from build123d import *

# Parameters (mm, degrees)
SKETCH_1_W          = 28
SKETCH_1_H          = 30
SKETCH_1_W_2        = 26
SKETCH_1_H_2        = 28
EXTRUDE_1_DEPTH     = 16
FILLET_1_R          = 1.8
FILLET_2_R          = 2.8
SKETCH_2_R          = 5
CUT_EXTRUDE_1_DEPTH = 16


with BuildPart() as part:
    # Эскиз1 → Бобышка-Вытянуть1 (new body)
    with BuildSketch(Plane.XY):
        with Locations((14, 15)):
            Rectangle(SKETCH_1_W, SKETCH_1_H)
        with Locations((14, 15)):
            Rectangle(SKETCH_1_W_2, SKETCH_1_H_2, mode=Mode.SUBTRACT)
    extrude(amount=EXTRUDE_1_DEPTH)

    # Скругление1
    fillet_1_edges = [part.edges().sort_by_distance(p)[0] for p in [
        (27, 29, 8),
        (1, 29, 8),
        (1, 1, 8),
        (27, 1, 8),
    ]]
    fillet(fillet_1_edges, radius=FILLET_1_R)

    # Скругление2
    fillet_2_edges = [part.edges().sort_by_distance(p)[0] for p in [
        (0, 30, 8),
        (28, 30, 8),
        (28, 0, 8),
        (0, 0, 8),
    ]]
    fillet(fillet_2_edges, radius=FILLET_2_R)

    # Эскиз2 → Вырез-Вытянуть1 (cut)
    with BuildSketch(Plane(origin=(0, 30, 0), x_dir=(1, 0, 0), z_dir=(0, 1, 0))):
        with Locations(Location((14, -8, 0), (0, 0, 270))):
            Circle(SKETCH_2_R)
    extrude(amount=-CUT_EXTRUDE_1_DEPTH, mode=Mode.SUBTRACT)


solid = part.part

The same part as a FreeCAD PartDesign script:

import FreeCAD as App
import Part
import Sketcher


def edges_at(feature, points):
    """Names of the edges that pass closest to the given points."""
    edges = feature.Shape.Edges
    near = lambda p: min(range(len(edges)), key=lambda i: edges[i].distToShape(Part.Vertex(*p))[0])
    return sorted({f"Edge{near(p) + 1}" for p in points})


def add_polygon(sketch, points):
    """Adds a closed chain of lines whose ends are joined by coincident constraints."""
    first, n = sketch.GeometryCount, len(points)
    for a, b in zip(points, points[1:] + points[:1]):
        sketch.addGeometry(Part.LineSegment(App.Vector(*a, 0), App.Vector(*b, 0)), False)
    for i in range(n):
        sketch.addConstraint(Sketcher.Constraint("Coincident", first + i, 2, first + (i + 1) % n, 1))

doc = App.newDocument("Part")
params = doc.addObject("Spreadsheet::Sheet", "Params")
for row, (alias, value) in enumerate([
    ("sketch1_width", "28 mm"),
    ("sketch1_width2", "26 mm"),
    ("sketch1_height", "30 mm"),
    ("pad1_length", "16 mm"),
    ("fillet_radius", "1.8 mm"),
    ("fillet2_radius", "2.8 mm"),
    ("sketch2_diameter", "10 mm"),
    ("pocket1_length", "16 mm"),
], start=1):
    params.set(f"A{row}", alias)
    params.set(f"B{row}", "=" + value)
    params.setAlias(f"B{row}", alias)

body = doc.addObject("PartDesign::Body", "Body")

# Sketch on XY plane
sketch1 = body.newObject("Sketcher::SketchObject", "Sketch")
sketch1.AttachmentSupport = (doc.getObject("XY_Plane"), [""])
sketch1.MapMode = "FlatFace"
add_polygon(sketch1, [(0, 30), (0, 0), (28, 0), (28, 30)])  # lines 0-3
add_polygon(sketch1, [(27, 1), (1, 1), (1, 29), (27, 29)])  # lines 4-7
sketch1.addConstraint(Sketcher.Constraint("Vertical", 0))
sketch1.addConstraint(Sketcher.Constraint("Horizontal", 1))
sketch1.addConstraint(Sketcher.Constraint("Vertical", 2))
sketch1.addConstraint(Sketcher.Constraint("Horizontal", 3))
sketch1.addConstraint(Sketcher.Constraint("Horizontal", 4))
sketch1.addConstraint(Sketcher.Constraint("Vertical", 5))
sketch1.addConstraint(Sketcher.Constraint("Horizontal", 6))
sketch1.addConstraint(Sketcher.Constraint("Vertical", 7))
sketch1.addConstraint(Sketcher.Constraint("Coincident", 0, 2, -1, 1))
sketch1.addConstraint(Sketcher.Constraint("Equal", 3, 5))
sketch1.addConstraint(Sketcher.Constraint("DistanceX", 1, 1, 1, 2, 28.0))
sketch1.addConstraint(Sketcher.Constraint("DistanceX", 4, 2, 4, 1, 26.0))
sketch1.addConstraint(Sketcher.Constraint("DistanceY", 0, 2, 0, 1, 30.0))
sketch1.addConstraint(Sketcher.Constraint("DistanceX", -1, 1, 4, 2, 1.0))
sketch1.addConstraint(Sketcher.Constraint("DistanceY", -1, 1, 4, 2, 1.0))
sketch1.setExpression("Constraints[18]", "Params.sketch1_width")
sketch1.setExpression("Constraints[19]", "Params.sketch1_width2")
sketch1.setExpression("Constraints[20]", "Params.sketch1_height")
pad1 = body.newObject("PartDesign::Pad", "Pad")
pad1.Profile = sketch1
pad1.setExpression("Length", "Params.pad1_length")
doc.recompute()

fillet = body.newObject("PartDesign::Fillet", "Fillet")
fillet.Base = (pad1, edges_at(pad1, [
    (27, 29, 8),
    (1, 29, 8),
    (1, 1, 8),
    (27, 1, 8),
]))
fillet.setExpression("Radius", "Params.fillet_radius")
doc.recompute()

fillet2 = body.newObject("PartDesign::Fillet", "Fillet001")
fillet2.Base = (fillet, edges_at(fillet, [
    (0, 30, 8),
    (28, 30, 8),
    (28, 0, 8),
    (0, 0, 8),
]))
fillet2.setExpression("Radius", "Params.fillet2_radius")

# Sketch on XZ plane
sketch2 = body.newObject("Sketcher::SketchObject", "Sketch001")
sketch2.AttachmentSupport = (doc.getObject("XZ_Plane"), [""])
sketch2.MapMode = "FlatFace"
sketch2.AttachmentOffset = App.Placement(App.Vector(0, 0, -30), App.Rotation())
sketch2.addGeometry(Part.Circle(App.Vector(14, 8, 0), App.Vector(0, 0, 1), 5), False)
sketch2.addConstraint(Sketcher.Constraint("Diameter", 0, 10.0))
sketch2.addConstraint(Sketcher.Constraint("DistanceX", -1, 1, 0, 3, 14.0))
sketch2.addConstraint(Sketcher.Constraint("DistanceY", -1, 1, 0, 3, 8.0))
sketch2.setExpression("Constraints[0]", "Params.sketch2_diameter")
pocket1 = body.newObject("PartDesign::Pocket", "Pocket")
pocket1.Profile = sketch2
pocket1.setExpression("Length", "Params.pocket1_length")
pocket1.Reversed = True

doc.recompute()
